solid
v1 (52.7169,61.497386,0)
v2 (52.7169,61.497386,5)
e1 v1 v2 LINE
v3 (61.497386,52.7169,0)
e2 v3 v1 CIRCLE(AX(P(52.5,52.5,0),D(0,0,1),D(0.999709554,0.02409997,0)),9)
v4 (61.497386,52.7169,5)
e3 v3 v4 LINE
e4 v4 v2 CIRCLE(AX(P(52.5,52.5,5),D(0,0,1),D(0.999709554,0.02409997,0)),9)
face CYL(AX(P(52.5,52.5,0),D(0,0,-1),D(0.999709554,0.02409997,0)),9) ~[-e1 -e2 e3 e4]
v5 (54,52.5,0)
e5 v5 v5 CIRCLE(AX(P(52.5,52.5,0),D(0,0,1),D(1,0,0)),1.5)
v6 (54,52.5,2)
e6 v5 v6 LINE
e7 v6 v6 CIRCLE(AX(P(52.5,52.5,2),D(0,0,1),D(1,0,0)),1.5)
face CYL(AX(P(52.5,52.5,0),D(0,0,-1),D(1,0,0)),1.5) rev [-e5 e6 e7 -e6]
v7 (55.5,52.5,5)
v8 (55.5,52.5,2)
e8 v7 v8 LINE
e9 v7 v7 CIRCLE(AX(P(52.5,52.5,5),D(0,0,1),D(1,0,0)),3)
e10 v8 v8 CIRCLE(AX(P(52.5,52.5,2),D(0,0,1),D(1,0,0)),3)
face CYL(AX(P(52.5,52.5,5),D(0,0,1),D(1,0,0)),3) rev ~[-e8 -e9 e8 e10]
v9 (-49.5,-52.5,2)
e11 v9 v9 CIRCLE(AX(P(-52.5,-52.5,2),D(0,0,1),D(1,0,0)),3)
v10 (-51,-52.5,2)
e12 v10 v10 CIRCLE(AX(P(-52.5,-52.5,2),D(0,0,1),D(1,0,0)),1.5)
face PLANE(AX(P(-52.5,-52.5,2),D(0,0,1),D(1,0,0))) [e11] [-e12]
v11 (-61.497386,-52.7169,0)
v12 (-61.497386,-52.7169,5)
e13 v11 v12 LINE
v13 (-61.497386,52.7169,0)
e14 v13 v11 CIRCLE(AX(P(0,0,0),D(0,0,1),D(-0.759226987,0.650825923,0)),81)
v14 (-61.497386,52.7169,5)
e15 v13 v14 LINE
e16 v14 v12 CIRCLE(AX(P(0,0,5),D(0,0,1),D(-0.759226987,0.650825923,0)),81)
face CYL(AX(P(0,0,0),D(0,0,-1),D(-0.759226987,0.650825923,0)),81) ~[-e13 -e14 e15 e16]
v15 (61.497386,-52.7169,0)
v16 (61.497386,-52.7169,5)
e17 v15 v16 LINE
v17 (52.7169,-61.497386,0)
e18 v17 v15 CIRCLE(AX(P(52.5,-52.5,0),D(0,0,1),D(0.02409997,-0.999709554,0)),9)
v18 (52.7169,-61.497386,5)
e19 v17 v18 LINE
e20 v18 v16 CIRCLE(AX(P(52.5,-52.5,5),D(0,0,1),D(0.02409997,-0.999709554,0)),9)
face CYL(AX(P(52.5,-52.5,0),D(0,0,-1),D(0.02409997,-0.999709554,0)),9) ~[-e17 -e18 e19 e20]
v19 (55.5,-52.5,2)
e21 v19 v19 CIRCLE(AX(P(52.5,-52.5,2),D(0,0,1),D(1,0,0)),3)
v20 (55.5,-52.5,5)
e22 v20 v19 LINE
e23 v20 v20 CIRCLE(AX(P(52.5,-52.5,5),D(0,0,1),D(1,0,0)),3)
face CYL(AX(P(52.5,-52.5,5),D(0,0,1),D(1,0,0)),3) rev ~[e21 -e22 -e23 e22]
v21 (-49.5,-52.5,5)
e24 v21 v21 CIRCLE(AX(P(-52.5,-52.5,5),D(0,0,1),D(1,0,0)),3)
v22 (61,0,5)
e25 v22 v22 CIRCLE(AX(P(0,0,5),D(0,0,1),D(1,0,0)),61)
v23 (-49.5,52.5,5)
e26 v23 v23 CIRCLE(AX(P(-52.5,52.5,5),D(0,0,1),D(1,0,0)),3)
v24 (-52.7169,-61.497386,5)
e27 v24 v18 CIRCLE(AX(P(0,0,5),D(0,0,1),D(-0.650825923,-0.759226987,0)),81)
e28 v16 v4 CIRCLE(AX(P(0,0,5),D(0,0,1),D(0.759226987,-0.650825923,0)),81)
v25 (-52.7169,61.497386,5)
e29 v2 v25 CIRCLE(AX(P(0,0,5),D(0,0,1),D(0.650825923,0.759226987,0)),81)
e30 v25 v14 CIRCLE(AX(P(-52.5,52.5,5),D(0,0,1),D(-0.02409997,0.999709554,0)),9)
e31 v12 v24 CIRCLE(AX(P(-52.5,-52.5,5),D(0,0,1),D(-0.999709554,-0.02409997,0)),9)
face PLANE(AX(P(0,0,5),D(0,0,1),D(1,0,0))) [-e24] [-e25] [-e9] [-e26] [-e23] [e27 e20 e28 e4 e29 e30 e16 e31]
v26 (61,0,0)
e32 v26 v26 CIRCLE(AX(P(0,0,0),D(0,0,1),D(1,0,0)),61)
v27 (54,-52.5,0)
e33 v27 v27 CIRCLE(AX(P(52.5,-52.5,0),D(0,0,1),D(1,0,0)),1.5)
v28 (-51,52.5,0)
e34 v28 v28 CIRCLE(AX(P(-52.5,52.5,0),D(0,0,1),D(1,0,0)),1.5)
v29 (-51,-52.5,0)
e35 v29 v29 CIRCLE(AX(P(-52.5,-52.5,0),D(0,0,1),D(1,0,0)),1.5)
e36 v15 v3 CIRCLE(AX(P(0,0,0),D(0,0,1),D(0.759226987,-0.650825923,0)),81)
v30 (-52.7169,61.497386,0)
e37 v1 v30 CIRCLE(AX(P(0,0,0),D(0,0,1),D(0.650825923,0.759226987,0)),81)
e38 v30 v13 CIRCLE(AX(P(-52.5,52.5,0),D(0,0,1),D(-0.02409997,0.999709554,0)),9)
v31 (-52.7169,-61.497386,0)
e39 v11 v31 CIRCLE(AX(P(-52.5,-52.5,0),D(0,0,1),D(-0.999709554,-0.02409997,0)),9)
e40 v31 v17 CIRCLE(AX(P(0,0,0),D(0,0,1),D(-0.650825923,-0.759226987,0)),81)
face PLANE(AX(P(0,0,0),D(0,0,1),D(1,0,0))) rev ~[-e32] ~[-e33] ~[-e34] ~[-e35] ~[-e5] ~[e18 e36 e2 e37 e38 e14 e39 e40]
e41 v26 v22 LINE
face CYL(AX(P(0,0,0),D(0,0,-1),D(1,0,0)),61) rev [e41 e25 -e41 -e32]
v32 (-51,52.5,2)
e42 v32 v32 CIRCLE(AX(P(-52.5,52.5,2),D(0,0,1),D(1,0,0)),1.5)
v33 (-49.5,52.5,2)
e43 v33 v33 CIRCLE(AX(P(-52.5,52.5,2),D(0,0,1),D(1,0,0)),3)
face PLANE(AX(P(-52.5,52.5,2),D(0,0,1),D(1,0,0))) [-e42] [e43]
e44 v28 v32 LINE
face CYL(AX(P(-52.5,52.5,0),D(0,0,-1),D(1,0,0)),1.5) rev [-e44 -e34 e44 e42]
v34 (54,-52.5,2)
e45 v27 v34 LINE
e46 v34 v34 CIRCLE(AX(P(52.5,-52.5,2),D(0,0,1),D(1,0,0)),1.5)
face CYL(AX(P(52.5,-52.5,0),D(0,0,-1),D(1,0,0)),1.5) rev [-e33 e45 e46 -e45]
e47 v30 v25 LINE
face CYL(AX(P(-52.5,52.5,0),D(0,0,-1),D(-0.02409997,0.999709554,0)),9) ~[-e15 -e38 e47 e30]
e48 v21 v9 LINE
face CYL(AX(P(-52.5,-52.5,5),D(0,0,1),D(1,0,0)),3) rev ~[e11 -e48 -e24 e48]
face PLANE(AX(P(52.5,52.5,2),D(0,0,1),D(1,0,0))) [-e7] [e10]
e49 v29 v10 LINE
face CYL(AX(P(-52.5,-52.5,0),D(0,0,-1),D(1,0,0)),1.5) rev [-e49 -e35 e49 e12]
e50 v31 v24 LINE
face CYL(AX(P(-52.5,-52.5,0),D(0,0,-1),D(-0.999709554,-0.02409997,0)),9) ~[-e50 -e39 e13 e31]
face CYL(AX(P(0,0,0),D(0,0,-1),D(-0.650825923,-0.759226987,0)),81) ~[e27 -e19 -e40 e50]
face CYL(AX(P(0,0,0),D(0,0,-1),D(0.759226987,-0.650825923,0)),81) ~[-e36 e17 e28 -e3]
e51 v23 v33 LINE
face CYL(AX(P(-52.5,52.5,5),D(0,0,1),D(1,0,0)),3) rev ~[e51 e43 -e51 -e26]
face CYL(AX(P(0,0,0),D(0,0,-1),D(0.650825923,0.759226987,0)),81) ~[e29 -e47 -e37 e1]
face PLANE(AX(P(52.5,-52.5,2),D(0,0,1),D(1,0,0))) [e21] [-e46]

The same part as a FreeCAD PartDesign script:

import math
import FreeCAD as App
import Part
import Sketcher

doc = App.newDocument("Part")
body = doc.addObject("PartDesign::Body", "Body")

# Sketch on XY plane
sketch1 = body.newObject("Sketcher::SketchObject", "Sketch")
sketch1.AttachmentSupport = (doc.getObject("XY_Plane"), [""])
sketch1.MapMode = "FlatFace"
sketch1.addGeometry([
    Part.ArcOfCircle(Part.Circle(App.Vector(-52.5, 52.5, 0), App.Vector(0, 0, 1), 9), math.radians(91.38096), math.radians(178.61904)),  # 0
    Part.ArcOfCircle(Part.Circle(App.Vector(0, 0, 0), App.Vector(0, 0, 1), 81), math.radians(139.396098), math.radians(220.603902)),  # 1
    Part.ArcOfCircle(Part.Circle(App.Vector(-52.5, -52.5, 0), App.Vector(0, 0, 1), 9), math.radians(-178.61904), math.radians(-91.38096)),  # 2
    Part.ArcOfCircle(Part.Circle(App.Vector(0, 0, 0), App.Vector(0, 0, 1), 81), math.radians(-130.603902), math.radians(-49.396098)),  # 3
    Part.ArcOfCircle(Part.Circle(App.Vector(52.5, -52.5, 0), App.Vector(0, 0, 1), 9), math.radians(-88.61904), math.radians(-1.38096)),  # 4
    Part.ArcOfCircle(Part.Circle(App.Vector(0, 0, 0), App.Vector(0, 0, 1), 81), math.radians(-40.603902), math.radians(40.603902)),  # 5
    Part.ArcOfCircle(Part.Circle(App.Vector(52.5, 52.5, 0), App.Vector(0, 0, 1), 9), math.radians(1.38096), math.radians(88.61904)),  # 6
    Part.ArcOfCircle(Part.Circle(App.Vector(0, 0, 0), App.Vector(0, 0, 1), 81), math.radians(49.396098), math.radians(130.603902)),  # 7
    Part.Circle(App.Vector(-52.5, -52.5, 0), App.Vector(0, 0, 1), 1.5),  # 8
    Part.Circle(App.Vector(52.5, -52.5, 0), App.Vector(0, 0, 1), 1.5),  # 9
    Part.Circle(App.Vector(-52.5, 52.5, 0), App.Vector(0, 0, 1), 1.5),  # 10
    Part.Circle(App.Vector(0, 0, 0), App.Vector(0, 0, 1), 61),  # 11
    Part.Circle(App.Vector(52.5, 52.5, 0), App.Vector(0, 0, 1), 1.5),  # 12
], False)
sketch1.addConstraint([
    Sketcher.Constraint("Coincident", 0, 2, 1, 1),
    Sketcher.Constraint("Coincident", 1, 2, 2, 1),
    Sketcher.Constraint("Coincident", 2, 2, 3, 1),
    Sketcher.Constraint("Coincident", 3, 2, 4, 1),
    Sketcher.Constraint("Coincident", 4, 2, 5, 1),
    Sketcher.Constraint("Coincident", 5, 2, 6, 1),
    Sketcher.Constraint("Coincident", 6, 2, 7, 1),
    Sketcher.Constraint("Coincident", 7, 2, 0, 1),
    Sketcher.Constraint("Coincident", 1, 3, -1, 1),
    Sketcher.Constraint("Coincident", 3, 3, -1, 1),
    Sketcher.Constraint("Coincident", 5, 3, -1, 1),
    Sketcher.Constraint("Coincident", 7, 3, -1, 1),
    Sketcher.Constraint("Coincident", 11, 3, -1, 1),
    Sketcher.Constraint("Coincident", 8, 3, 2, 3),
    Sketcher.Constraint("Coincident", 9, 3, 4, 3),
    Sketcher.Constraint("Coincident", 10, 3, 0, 3),
    Sketcher.Constraint("Coincident", 12, 3, 6, 3),
    Sketcher.Constraint("Equal", 0, 2),
    Sketcher.Constraint("Equal", 1, 3),
    Sketcher.Constraint("Equal", 2, 4),
    Sketcher.Constraint("Equal", 3, 5),
    Sketcher.Constraint("Equal", 4, 6),
    Sketcher.Constraint("Equal", 5, 7),
    Sketcher.Constraint("Equal", 8, 9),
    Sketcher.Constraint("Equal", 9, 10),
    Sketcher.Constraint("Equal", 10, 12),
    Sketcher.Constraint("Symmetric", 0, 3, 4, 3, -1, 1),
    Sketcher.Constraint("Symmetric", 2, 3, 6, 3, -1, 1),
    Sketcher.Constraint("Symmetric", 2, 3, 4, 3, -2),
    Sketcher.Constraint("Diameter", 8, 3.0),
    Sketcher.Constraint("Diameter", 11, 122.0),
    Sketcher.Constraint("Radius", 0, 9.0),
    Sketcher.Constraint("Radius", 1, 81.0),
    Sketcher.Constraint("DistanceY", 2, 3, 0, 3, 105.0),
    Sketcher.Constraint("DistanceX", 2, 3, 4, 3, 105.0),
])
pad1 = body.newObject("PartDesign::Pad", "Pad")
pad1.Profile = sketch1
pad1.Length = 5

# Sketch on XY plane
sketch2 = body.newObject("Sketcher::SketchObject", "Sketch001")
sketch2.AttachmentSupport = (doc.getObject("XY_Plane"), [""])
sketch2.MapMode = "FlatFace"
sketch2.AttachmentOffset = App.Placement(App.Vector(0, 0, 5), App.Rotation())
sketch2.addGeometry([
    Part.Circle(App.Vector(-52.5, 52.5, 0), App.Vector(0, 0, 1), 3),  # 0
    Part.Circle(App.Vector(-52.5, 52.5, 0), App.Vector(0, 0, 1), 1.5),  # 1
    Part.Circle(App.Vector(52.5, 52.5, 0), App.Vector(0, 0, 1), 3),  # 2
    Part.Circle(App.Vector(52.5, 52.5, 0), App.Vector(0, 0, 1), 1.5),  # 3
    Part.Circle(App.Vector(-52.5, -52.5, 0), App.Vector(0, 0, 1), 3),  # 4
    Part.Circle(App.Vector(-52.5, -52.5, 0), App.Vector(0, 0, 1), 1.5),  # 5
    Part.Circle(App.Vector(52.5, -52.5, 0), App.Vector(0, 0, 1), 3),  # 6
    Part.Circle(App.Vector(52.5, -52.5, 0), App.Vector(0, 0, 1), 1.5),  # 7
], False)
sketch2.addConstraint([
    Sketcher.Constraint("Coincident", 1, 3, 0, 3),
    Sketcher.Constraint("Coincident", 3, 3, 2, 3),
    Sketcher.Constraint("Coincident", 5, 3, 4, 3),
    Sketcher.Constraint("Coincident", 7, 3, 6, 3),
    Sketcher.Constraint("Equal", 0, 2),
    Sketcher.Constraint("Equal", 1, 3),
    Sketcher.Constraint("Equal", 2, 4),
    Sketcher.Constraint("Equal", 3, 5),
    Sketcher.Constraint("Equal", 4, 6),
    Sketcher.Constraint("Equal", 5, 7),
    Sketcher.Constraint("Symmetric", 2, 3, 4, 3, -1, 1),
    Sketcher.Constraint("Symmetric", 0, 3, 6, 3, -1, 1),
    Sketcher.Constraint("Symmetric", 0, 3, 2, 3, -2),
    Sketcher.Constraint("Diameter", 0, 6.0),
    Sketcher.Constraint("Diameter", 1, 3.0),
    Sketcher.Constraint("DistanceX", 0, 3, 2, 3, 105.0),
    Sketcher.Constraint("DistanceY", 4, 3, 0, 3, 105.0),
])
pocket1 = body.newObject("PartDesign::Pocket", "Pocket")
pocket1.Profile = sketch2
pocket1.Length = 3

doc.recompute()
